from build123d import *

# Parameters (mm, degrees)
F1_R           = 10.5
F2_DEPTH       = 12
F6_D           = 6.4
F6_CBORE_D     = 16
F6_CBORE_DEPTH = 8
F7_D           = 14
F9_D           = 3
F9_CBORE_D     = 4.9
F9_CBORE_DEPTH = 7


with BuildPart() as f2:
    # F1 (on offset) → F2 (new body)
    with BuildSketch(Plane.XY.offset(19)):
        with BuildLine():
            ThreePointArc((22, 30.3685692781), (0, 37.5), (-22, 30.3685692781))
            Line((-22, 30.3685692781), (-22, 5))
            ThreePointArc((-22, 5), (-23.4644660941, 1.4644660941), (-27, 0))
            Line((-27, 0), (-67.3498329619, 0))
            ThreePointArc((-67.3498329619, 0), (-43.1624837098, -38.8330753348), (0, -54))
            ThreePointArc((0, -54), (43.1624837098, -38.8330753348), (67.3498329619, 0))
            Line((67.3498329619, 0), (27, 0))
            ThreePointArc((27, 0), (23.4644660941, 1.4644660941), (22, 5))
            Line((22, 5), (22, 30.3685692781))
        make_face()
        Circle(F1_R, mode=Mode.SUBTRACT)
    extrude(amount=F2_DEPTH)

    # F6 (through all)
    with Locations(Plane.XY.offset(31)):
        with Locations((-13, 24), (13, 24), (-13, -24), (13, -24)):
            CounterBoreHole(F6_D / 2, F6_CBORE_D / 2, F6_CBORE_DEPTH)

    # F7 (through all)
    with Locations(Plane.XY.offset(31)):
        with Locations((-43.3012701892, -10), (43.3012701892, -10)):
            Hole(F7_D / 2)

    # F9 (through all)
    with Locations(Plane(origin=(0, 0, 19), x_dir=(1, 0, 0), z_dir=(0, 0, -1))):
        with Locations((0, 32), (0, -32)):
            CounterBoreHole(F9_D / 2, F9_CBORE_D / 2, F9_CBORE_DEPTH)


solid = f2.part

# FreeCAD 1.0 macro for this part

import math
import FreeCAD as App
import Part
import Sketcher
from FreeCAD import Vector
Q = App.Units.Quantity

doc = App.newDocument("Part")
body = doc.addObject("PartDesign::Body", "Body")

sketch1 = body.newObject("Sketcher::SketchObject", "Sketch")
sketch1.AttachmentSupport = (doc.getObject("XY_Plane"), [""])
sketch1.MapMode = "FlatFace"
sketch1.AttachmentOffset = App.Placement(Vector(0, 0, 19), App.Rotation())
sketch1.addGeometry(Part.ArcOfCircle(Part.Circle(Vector(0, 0, 0), Vector(0, 0, 1), 38), math.radians(54), math.radians(126)), False)
sketch1.addGeometry(Part.LineSegment(Vector(-22, 30, 0), Vector(-22, 5, 0)), False)
sketch1.addGeometry(Part.ArcOfCircle(Part.Circle(Vector(-27, 5, 0), Vector(0, 0, 1), 5), math.radians(-90), math.radians(0)), False)
sketch1.addGeometry(Part.LineSegment(Vector(-27, 0, 0), Vector(-67, 0, 0)), False)
sketch1.addGeometry(Part.ArcOfCircle(Part.Circle(Vector(0, 15, 0), Vector(0, 0, 1), 69), math.radians(-167), math.radians(-90)), False)
sketch1.addGeometry(Part.ArcOfCircle(Part.Circle(Vector(0, 15, 0), Vector(0, 0, 1), 69), math.radians(-90), math.radians(-13)), False)
sketch1.addGeometry(Part.LineSegment(Vector(67, 0, 0), Vector(27, 0, 0)), False)
sketch1.addGeometry(Part.ArcOfCircle(Part.Circle(Vector(27, 5, 0), Vector(0, 0, 1), 5), math.radians(180), math.radians(270)), False)
sketch1.addGeometry(Part.LineSegment(Vector(22, 5, 0), Vector(22, 30, 0)), False)
sketch1.addGeometry(Part.Circle(Vector(0, 0, 0), Vector(0, 0, 1), 10), False)
sketch1.addConstraint(Sketcher.Constraint("Coincident", 0, 2, 1, 1))
sketch1.addConstraint(Sketcher.Constraint("Tangent", 1, 2, 2, 2))
sketch1.addConstraint(Sketcher.Constraint("Tangent", 2, 1, 3, 1))
sketch1.addConstraint(Sketcher.Constraint("Coincident", 3, 2, 4, 1))
sketch1.addConstraint(Sketcher.Constraint("Tangent", 4, 2, 5, 1))
sketch1.addConstraint(Sketcher.Constraint("Coincident", 5, 2, 6, 1))
sketch1.addConstraint(Sketcher.Constraint("Tangent", 6, 2, 7, 2))
sketch1.addConstraint(Sketcher.Constraint("Tangent", 7, 1, 8, 1))
sketch1.addConstraint(Sketcher.Constraint("Coincident", 8, 2, 0, 1))
sketch1.addConstraint(Sketcher.Constraint("Vertical", 1))
sketch1.addConstraint(Sketcher.Constraint("Horizontal", 3))
sketch1.addConstraint(Sketcher.Constraint("Horizontal", 6))
sketch1.addConstraint(Sketcher.Constraint("Vertical", 8))
sketch1.addConstraint(Sketcher.Constraint("Coincident", 0, 3, -1, 1))
sketch1.addConstraint(Sketcher.Constraint("Coincident", 9, 3, -1, 1))
sketch1.addConstraint(Sketcher.Constraint("Equal", 4, 5))
sketch1.addConstraint(Sketcher.Constraint("Equal", 2, 7))
sketch1.addConstraint(Sketcher.Constraint("Symmetric", 3, 2, 5, 2, -1, 1))
sketch1.addConstraint(Sketcher.Constraint("Symmetric", 2, 3, 7, 3, -2))
sketch1.addConstraint(Sketcher.Constraint("PointOnObject", 4, 2, -2))
sketch1.addConstraint(Sketcher.Constraint("Diameter", 9, Q("21 mm")))
sketch1.addConstraint(Sketcher.Constraint("Radius", 2, Q("5 mm")))
sketch1.addConstraint(Sketcher.Constraint("Radius", 4, Q("69 mm")))
sketch1.addConstraint(Sketcher.Constraint("Radius", 0, Q("37.5 mm")))
sketch1.addConstraint(Sketcher.Constraint("DistanceX", 2, 3, -1, 1, Q("27 mm")))
sketch1.addConstraint(Sketcher.Constraint("DistanceY", -1, 1, 4, 3, Q("15 mm")))
pad1 = body.newObject("PartDesign::Pad", "Pad")
pad1.Profile = sketch1
pad1.Length = 12

sketch2 = body.newObject("Sketcher::SketchObject", "Sketch001")
sketch2.AttachmentSupport = (doc.getObject("XY_Plane"), [""])
sketch2.MapMode = "FlatFace"
sketch2.AttachmentOffset = App.Placement(Vector(0, 0, 31), App.Rotation())
sketch2.addGeometry(Part.Circle(Vector(-13, 24, 0), Vector(0, 0, 1), 3.2), False)
sketch2.addGeometry(Part.Circle(Vector(13, 24, 0), Vector(0, 0, 1), 3.2), False)
sketch2.addGeometry(Part.Circle(Vector(-13, -24, 0), Vector(0, 0, 1), 3.2), False)
sketch2.addGeometry(Part.Circle(Vector(13, -24, 0), Vector(0, 0, 1), 3.2), False)
sketch2.addConstraint(Sketcher.Constraint("Equal", 0, 1))
sketch2.addConstraint(Sketcher.Constraint("Equal", 1, 2))
sketch2.addConstraint(Sketcher.Constraint("Equal", 2, 3))
sketch2.addConstraint(Sketcher.Constraint("Symmetric", 1, 3, 2, 3, -1, 1))
sketch2.addConstraint(Sketcher.Constraint("Symmetric", 0, 3, 3, 3, -1, 1))
sketch2.addConstraint(Sketcher.Constraint("Symmetric", 0, 3, 1, 3, -2))
sketch2.addConstraint(Sketcher.Constraint("Diameter", 0, Q("6.4 mm")))
sketch2.addConstraint(Sketcher.Constraint("DistanceX", 0, 3, -1, 1, Q("13 mm")))
sketch2.addConstraint(Sketcher.Constraint("DistanceY", -1, 1, 0, 3, Q("24 mm")))
doc.recompute()
hole = body.newObject("PartDesign::Hole", "Hole")
hole.Profile = sketch2
hole.ThreadType = "None"
hole.Diameter = 6.4
hole.DepthType = "ThroughAll"
hole.HoleCutType = "Counterbore"
hole.HoleCutDiameter = 16
hole.HoleCutDepth = 8

sketch3 = body.newObject("Sketcher::SketchObject", "Sketch002")
sketch3.AttachmentSupport = (doc.getObject("XY_Plane"), [""])
sketch3.MapMode = "FlatFace"
sketch3.AttachmentOffset = App.Placement(Vector(0, 0, 31), App.Rotation())
sketch3.addGeometry(Part.Circle(Vector(-43, -10, 0), Vector(0, 0, 1), 7), False)
sketch3.addGeometry(Part.Circle(Vector(43, -10, 0), Vector(0, 0, 1), 7), False)
sketch3.addConstraint(Sketcher.Constraint("Equal", 0, 1))
sketch3.addConstraint(Sketcher.Constraint("Symmetric", 0, 3, 1, 3, -2))
sketch3.addConstraint(Sketcher.Constraint("Diameter", 0, Q("14 mm")))
sketch3.addConstraint(Sketcher.Constraint("DistanceY", 0, 3, -1, 1, Q("10 mm")))
sketch3.addConstraint(Sketcher.Constraint("DistanceX", 0, 3, -1, 1, Q("43.30127 mm")))
doc.recompute()
hole2 = body.newObject("PartDesign::Hole", "Hole001")
hole2.Profile = sketch3
hole2.ThreadType = "None"
hole2.Diameter = 14
hole2.DepthType = "ThroughAll"

sketch4 = body.newObject("Sketcher::SketchObject", "Sketch003")
sketch4.AttachmentSupport = (doc.getObject("XY_Plane"), [""])
sketch4.MapMode = "FlatFace"
sketch4.AttachmentOffset = App.Placement(Vector(0, 0, 19), App.Rotation())
sketch4.addGeometry(Part.Circle(Vector(0, -32, 0), Vector(0, 0, 1), 1.5), False)
sketch4.addGeometry(Part.Circle(Vector(0, 32, 0), Vector(0, 0, 1), 1.5), False)
sketch4.addConstraint(Sketcher.Constraint("Equal", 0, 1))
sketch4.addConstraint(Sketcher.Constraint("Symmetric", 0, 3, 1, 3, -1, 1))
sketch4.addConstraint(Sketcher.Constraint("PointOnObject", 0, 3, -2))
sketch4.addConstraint(Sketcher.Constraint("Diameter", 0, Q("3 mm")))
sketch4.addConstraint(Sketcher.Constraint("DistanceY", 0, 3, -1, 1, Q("32 mm")))
doc.recompute()
hole3 = body.newObject("PartDesign::Hole", "Hole002")
hole3.Profile = sketch4
hole3.ThreadType = "None"
hole3.Diameter = 3
hole3.DepthType = "ThroughAll"
hole3.HoleCutType = "Counterbore"
hole3.HoleCutDiameter = 4.9
hole3.HoleCutDepth = 7
hole3.Reversed = True

doc.recompute()
